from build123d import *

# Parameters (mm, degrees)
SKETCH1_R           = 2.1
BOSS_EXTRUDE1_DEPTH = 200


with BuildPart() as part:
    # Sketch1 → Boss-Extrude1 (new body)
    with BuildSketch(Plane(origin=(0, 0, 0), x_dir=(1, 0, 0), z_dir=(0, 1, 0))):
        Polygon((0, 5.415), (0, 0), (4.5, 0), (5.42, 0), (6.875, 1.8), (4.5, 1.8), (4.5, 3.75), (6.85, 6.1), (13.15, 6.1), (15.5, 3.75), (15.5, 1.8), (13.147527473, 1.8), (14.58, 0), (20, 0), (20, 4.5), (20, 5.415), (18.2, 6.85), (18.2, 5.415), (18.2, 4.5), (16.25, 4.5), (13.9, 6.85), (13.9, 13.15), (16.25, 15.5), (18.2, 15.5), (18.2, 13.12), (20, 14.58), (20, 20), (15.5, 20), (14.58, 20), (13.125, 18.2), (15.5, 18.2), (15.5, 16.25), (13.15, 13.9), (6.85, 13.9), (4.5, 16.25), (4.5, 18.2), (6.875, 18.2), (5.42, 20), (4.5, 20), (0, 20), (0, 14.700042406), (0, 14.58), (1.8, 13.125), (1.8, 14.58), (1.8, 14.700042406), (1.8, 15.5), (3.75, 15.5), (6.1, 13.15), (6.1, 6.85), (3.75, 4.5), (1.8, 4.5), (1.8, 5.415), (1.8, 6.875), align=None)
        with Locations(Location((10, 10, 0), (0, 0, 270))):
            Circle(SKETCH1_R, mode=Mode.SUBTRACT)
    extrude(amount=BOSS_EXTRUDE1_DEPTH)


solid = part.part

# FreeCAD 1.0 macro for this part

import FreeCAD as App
import Part
import Sketcher
Q = App.Units.Quantity


def add_polygon(sketch, points):
    """Adds a closed chain of lines whose ends are joined by coincident constraints."""
    first, n = sketch.GeometryCount, len(points)
    for a, b in zip(points, points[1:] + points[:1]):
        sketch.addGeometry(Part.LineSegment(App.Vector(*a, 0), App.Vector(*b, 0)), False)
    for i in range(n):
        sketch.addConstraint(Sketcher.Constraint("Coincident", first + i, 2, first + (i + 1) % n, 1))

doc = App.newDocument("Part")
body = doc.addObject("PartDesign::Body", "Body")

sketch1 = body.newObject("Sketcher::SketchObject", "Sketch")
sketch1.AttachmentSupport = (doc.getObject("XZ_Plane"), [""])
sketch1.MapMode = "FlatFace"
add_polygon(sketch1, [(0, -5.4), (0, 0), (5.4, 0), (6.9, -1.8), (4.5, -1.8), (4.5, -3.8), (6.8, -6.1), (13.2, -6.1), (15.5, -3.8), (15.5, -1.8), (13.1, -1.8), (14.6, 0), (20, 0), (20, -5.4), (18.2, -6.8), (18.2, -4.5), (16.2, -4.5), (13.9, -6.8), (13.9, -13.2), (16.2, -15.5), (18.2, -15.5), (18.2, -13.1), (20, -14.6), (20, -20), (14.6, -20), (13.1, -18.2), (15.5, -18.2), (15.5, -16.2), (13.2, -13.9), (6.8, -13.9), (4.5, -16.2), (4.5, -18.2), (6.9, -18.2), (5.4, -20), (0, -20), (0, -14.6), (1.8, -13.1), (1.8, -15.5), (3.8, -15.5), (6.1, -13.2), (6.1, -6.8), (3.8, -4.5), (1.8, -4.5), (1.8, -6.9)])
sketch1.addGeometry(Part.Circle(App.Vector(10, -10, 0), App.Vector(0, 0, 1), 2.1), False)
sketch1.addConstraint(Sketcher.Constraint("Vertical", 0))
sketch1.addConstraint(Sketcher.Constraint("Horizontal", 1))
sketch1.addConstraint(Sketcher.Constraint("Horizontal", 3))
sketch1.addConstraint(Sketcher.Constraint("Vertical", 4))
sketch1.addConstraint(Sketcher.Constraint("Horizontal", 6))
sketch1.addConstraint(Sketcher.Constraint("Vertical", 8))
sketch1.addConstraint(Sketcher.Constraint("Horizontal", 9))
sketch1.addConstraint(Sketcher.Constraint("Horizontal", 11))
sketch1.addConstraint(Sketcher.Constraint("Vertical", 12))
sketch1.addConstraint(Sketcher.Constraint("Vertical", 14))
sketch1.addConstraint(Sketcher.Constraint("Horizontal", 15))
sketch1.addConstraint(Sketcher.Constraint("Vertical", 17))
sketch1.addConstraint(Sketcher.Constraint("Horizontal", 19))
sketch1.addConstraint(Sketcher.Constraint("Vertical", 20))
sketch1.addConstraint(Sketcher.Constraint("Vertical", 22))
sketch1.addConstraint(Sketcher.Constraint("Horizontal", 23))
sketch1.addConstraint(Sketcher.Constraint("Horizontal", 25))
sketch1.addConstraint(Sketcher.Constraint("Vertical", 26))
sketch1.addConstraint(Sketcher.Constraint("Horizontal", 28))
sketch1.addConstraint(Sketcher.Constraint("Vertical", 30))
sketch1.addConstraint(Sketcher.Constraint("Horizontal", 31))
sketch1.addConstraint(Sketcher.Constraint("Horizontal", 33))
sketch1.addConstraint(Sketcher.Constraint("Vertical", 34))
sketch1.addConstraint(Sketcher.Constraint("Vertical", 36))
sketch1.addConstraint(Sketcher.Constraint("Horizontal", 37))
sketch1.addConstraint(Sketcher.Constraint("Vertical", 39))
sketch1.addConstraint(Sketcher.Constraint("Horizontal", 41))
sketch1.addConstraint(Sketcher.Constraint("Vertical", 42))
sketch1.addConstraint(Sketcher.Constraint("Coincident", 0, 2, -1, 1))
sketch1.addConstraint(Sketcher.Constraint("PointOnObject", 10, 2, -1))
sketch1.addConstraint(Sketcher.Constraint("PointOnObject", 33, 2, -2))
sketch1.addConstraint(Sketcher.Constraint("Perpendicular", 5, 7))
sketch1.addConstraint(Sketcher.Constraint("Parallel", 7, 16))
sketch1.addConstraint(Sketcher.Constraint("Perpendicular", 16, 18))
sketch1.addConstraint(Sketcher.Constraint("Parallel", 2, 24))
sketch1.addConstraint(Sketcher.Constraint("Parallel", 18, 27))
sketch1.addConstraint(Sketcher.Constraint("Perpendicular", 27, 29))
sketch1.addConstraint(Sketcher.Constraint("Perpendicular", 24, 35))
sketch1.addConstraint(Sketcher.Constraint("Parallel", 29, 38))
sketch1.addConstraint(Sketcher.Constraint("Perpendicular", 38, 40))
sketch1.addConstraint(Sketcher.Constraint("Parallel", 21, 43))
sketch1.addConstraint(Sketcher.Constraint("Horizontal", 4, 2, 7, 2))
sketch1.addConstraint(Sketcher.Constraint("Horizontal", 3, 2, 8, 2))
sketch1.addConstraint(Sketcher.Constraint("Horizontal", 13, 2, 16, 2))
sketch1.addConstraint(Sketcher.Constraint("Horizontal", 26, 2, 29, 2))
sketch1.addConstraint(Sketcher.Constraint("Horizontal", 25, 2, 30, 2))
sketch1.addConstraint(Sketcher.Constraint("Horizontal", 23, 2, 32, 2))
sketch1.addConstraint(Sketcher.Constraint("Horizontal", 21, 2, 34, 2))
sketch1.addConstraint(Sketcher.Constraint("Horizontal", 19, 2, 36, 2))
sketch1.addConstraint(Sketcher.Constraint("Horizontal", 17, 2, 38, 2))
sketch1.addConstraint(Sketcher.Constraint("Horizontal", 16, 2, 39, 2))
sketch1.addConstraint(Sketcher.Constraint("Horizontal", 15, 2, 40, 2))
sketch1.addConstraint(Sketcher.Constraint("Horizontal", 12, 2, 43, 2))
sketch1.addConstraint(Sketcher.Constraint("Vertical", 15, 2, 18, 2))
sketch1.addConstraint(Sketcher.Constraint("Vertical", 14, 2, 19, 2))
sketch1.addConstraint(Sketcher.Constraint("Vertical", 12, 2, 21, 2))
sketch1.addConstraint(Sketcher.Constraint("Vertical", 10, 2, 23, 2))
sketch1.addConstraint(Sketcher.Constraint("Vertical", 8, 2, 25, 2))
sketch1.addConstraint(Sketcher.Constraint("Vertical", 6, 2, 27, 2))
sketch1.addConstraint(Sketcher.Constraint("Vertical", 5, 2, 28, 2))
sketch1.addConstraint(Sketcher.Constraint("Vertical", 4, 2, 29, 2))
sketch1.addConstraint(Sketcher.Constraint("Vertical", 2, 2, 31, 2))
sketch1.addConstraint(Sketcher.Constraint("Vertical", 1, 2, 32, 2))
sketch1.addConstraint(Sketcher.Constraint("Vertical", 36, 2, 41, 2))
sketch1.addConstraint(Sketcher.Constraint("Equal", 1, 11))
sketch1.addConstraint(Sketcher.Constraint("Equal", 3, 25))
sketch1.addConstraint(Sketcher.Constraint("Equal", 19, 37))
sketch1.addConstraint(Sketcher.Constraint("Equal", 41, 4))
sketch1.addConstraint(Sketcher.Constraint("Equal", 28, 17))
sketch1.addConstraint(Sketcher.Constraint("Equal", 33, 22))
sketch1.addConstraint(Sketcher.Constraint("Equal", 8, 26))
sketch1.addConstraint(Sketcher.Constraint("Equal", 31, 36))
sketch1.addConstraint(Sketcher.Constraint("Equal", 36, 42))
sketch1.addConstraint(Sketcher.Constraint("Equal", 7, 16))
sketch1.addConstraint(Sketcher.Constraint("Equal", 2, 24))
sketch1.addConstraint(Sketcher.Constraint("Equal", 32, 35))
sketch1.addConstraint(Sketcher.Constraint("Equal", 21, 43))
sketch1.addConstraint(Sketcher.Constraint("Diameter", 44, Q("4.2 mm")))
sketch1.addConstraint(Sketcher.Constraint("DistanceX", 6, 1, 6, 2, Q("6.3 mm")))
sketch1.addConstraint(Sketcher.Constraint("DistanceX", -1, 1, 44, 3, Q("10 mm")))
sketch1.addConstraint(Sketcher.Constraint("DistanceY", 44, 3, -1, 1, Q("10 mm")))
sketch1.addConstraint(Sketcher.Constraint("DistanceX", -1, 1, 11, 2, Q("20 mm")))
sketch1.addConstraint(Sketcher.Constraint("DistanceY", 22, 2, -1, 1, Q("20 mm")))
sketch1.addConstraint(Sketcher.Constraint("DistanceX", 1, 1, 1, 2, Q("5.42 mm")))
sketch1.addConstraint(Sketcher.Constraint("DistanceX", 15, 2, 15, 1, Q("1.95 mm")))
sketch1.addConstraint(Sketcher.Constraint("DistanceY", 14, 1, 14, 2, Q("2.35 mm")))
sketch1.addConstraint(Sketcher.Constraint("DistanceY", 20, 1, 20, 2, Q("2.38 mm")))
sketch1.addConstraint(Sketcher.Constraint("DistanceY", 2, 2, -1, 1, Q("1.8 mm")))
sketch1.addConstraint(Sketcher.Constraint("DistanceX", 3, 2, 3, 1, Q("2.375 mm")))
sketch1.addConstraint(Sketcher.Constraint("Distance", 10, Q("2.30043 mm")))
pad1 = body.newObject("PartDesign::Pad", "Pad")
pad1.Profile = sketch1
pad1.Length = 200
pad1.Reversed = True

doc.recompute()
